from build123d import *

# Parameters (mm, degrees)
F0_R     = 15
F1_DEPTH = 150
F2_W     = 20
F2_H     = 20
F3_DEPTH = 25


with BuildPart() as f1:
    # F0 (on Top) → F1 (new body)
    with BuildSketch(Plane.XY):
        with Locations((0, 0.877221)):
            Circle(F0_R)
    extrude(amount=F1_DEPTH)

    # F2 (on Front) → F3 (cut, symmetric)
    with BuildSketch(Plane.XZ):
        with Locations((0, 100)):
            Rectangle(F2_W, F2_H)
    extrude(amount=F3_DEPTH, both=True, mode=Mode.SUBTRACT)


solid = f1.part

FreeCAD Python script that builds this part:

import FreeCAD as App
import Part
import Sketcher
Q = App.Units.Quantity


def add_polygon(sketch, points):
    """Adds a closed chain of lines whose ends are joined by coincident constraints."""
    first, n = sketch.GeometryCount, len(points)
    for a, b in zip(points, points[1:] + points[:1]):
        sketch.addGeometry(Part.LineSegment(App.Vector(*a, 0), App.Vector(*b, 0)), False)
    for i in range(n):
        sketch.addConstraint(Sketcher.Constraint("Coincident", first + i, 2, first + (i + 1) % n, 1))

doc = App.newDocument("Part")
params = doc.addObject("Spreadsheet::Sheet", "Params")
for row, (alias, value) in enumerate([
    ("sketch1_diameter", "30 mm"),
    ("pad1_length", "150 mm"),
    ("sketch2_width", "20 mm"),
    ("pocket1_length", "50 mm"),
], start=1):
    params.set(f"A{row}", alias)
    params.set(f"B{row}", "=" + value)
    params.setAlias(f"B{row}", alias)

body = doc.addObject("PartDesign::Body", "Body")

# Sketch on XY plane
sketch1 = body.newObject("Sketcher::SketchObject", "Sketch")
sketch1.AttachmentSupport = (doc.getObject("XY_Plane"), [""])
sketch1.MapMode = "FlatFace"
sketch1.addGeometry(Part.Circle(App.Vector(0, 0.877221, 0), App.Vector(0, 0, 1), 15), False)
sketch1.addConstraint(Sketcher.Constraint("PointOnObject", 0, 3, -2))
sketch1.addConstraint(Sketcher.Constraint("Diameter", 0, Q("30 mm")))
sketch1.addConstraint(Sketcher.Constraint("DistanceY", -1, 1, 0, 3, Q("0.877221 mm")))
sketch1.setExpression("Constraints[1]", "Params.sketch1_diameter")
pad1 = body.newObject("PartDesign::Pad", "Pad")
pad1.Profile = sketch1
pad1.setExpression("Length", "Params.pad1_length")

# Sketch on XZ plane
sketch2 = body.newObject("Sketcher::SketchObject", "Sketch001")
sketch2.AttachmentSupport = (doc.getObject("XZ_Plane"), [""])
sketch2.MapMode = "FlatFace"
add_polygon(sketch2, [(-10, 110), (-10, 90), (10, 90), (10, 110)])  # lines 0-3
sketch2.addConstraint(Sketcher.Constraint("Vertical", 0))
sketch2.addConstraint(Sketcher.Constraint("Horizontal", 1))
sketch2.addConstraint(Sketcher.Constraint("Vertical", 2))
sketch2.addConstraint(Sketcher.Constraint("Horizontal", 3))
sketch2.addConstraint(Sketcher.Constraint("Equal", 3, 0))
sketch2.addConstraint(Sketcher.Constraint("DistanceX", 1, 1, 1, 2, Q("20 mm")))
sketch2.addConstraint(Sketcher.Constraint("DistanceX", 0, 2, -1, 1, Q("10 mm")))
sketch2.addConstraint(Sketcher.Constraint("DistanceY", -1, 1, 0, 2, Q("90 mm")))
sketch2.setExpression("Constraints[9]", "Params.sketch2_width")
pocket1 = body.newObject("PartDesign::Pocket", "Pocket")
pocket1.Profile = sketch2
pocket1.setExpression("Length", "Params.pocket1_length")
pocket1.Midplane = True

doc.recompute()
